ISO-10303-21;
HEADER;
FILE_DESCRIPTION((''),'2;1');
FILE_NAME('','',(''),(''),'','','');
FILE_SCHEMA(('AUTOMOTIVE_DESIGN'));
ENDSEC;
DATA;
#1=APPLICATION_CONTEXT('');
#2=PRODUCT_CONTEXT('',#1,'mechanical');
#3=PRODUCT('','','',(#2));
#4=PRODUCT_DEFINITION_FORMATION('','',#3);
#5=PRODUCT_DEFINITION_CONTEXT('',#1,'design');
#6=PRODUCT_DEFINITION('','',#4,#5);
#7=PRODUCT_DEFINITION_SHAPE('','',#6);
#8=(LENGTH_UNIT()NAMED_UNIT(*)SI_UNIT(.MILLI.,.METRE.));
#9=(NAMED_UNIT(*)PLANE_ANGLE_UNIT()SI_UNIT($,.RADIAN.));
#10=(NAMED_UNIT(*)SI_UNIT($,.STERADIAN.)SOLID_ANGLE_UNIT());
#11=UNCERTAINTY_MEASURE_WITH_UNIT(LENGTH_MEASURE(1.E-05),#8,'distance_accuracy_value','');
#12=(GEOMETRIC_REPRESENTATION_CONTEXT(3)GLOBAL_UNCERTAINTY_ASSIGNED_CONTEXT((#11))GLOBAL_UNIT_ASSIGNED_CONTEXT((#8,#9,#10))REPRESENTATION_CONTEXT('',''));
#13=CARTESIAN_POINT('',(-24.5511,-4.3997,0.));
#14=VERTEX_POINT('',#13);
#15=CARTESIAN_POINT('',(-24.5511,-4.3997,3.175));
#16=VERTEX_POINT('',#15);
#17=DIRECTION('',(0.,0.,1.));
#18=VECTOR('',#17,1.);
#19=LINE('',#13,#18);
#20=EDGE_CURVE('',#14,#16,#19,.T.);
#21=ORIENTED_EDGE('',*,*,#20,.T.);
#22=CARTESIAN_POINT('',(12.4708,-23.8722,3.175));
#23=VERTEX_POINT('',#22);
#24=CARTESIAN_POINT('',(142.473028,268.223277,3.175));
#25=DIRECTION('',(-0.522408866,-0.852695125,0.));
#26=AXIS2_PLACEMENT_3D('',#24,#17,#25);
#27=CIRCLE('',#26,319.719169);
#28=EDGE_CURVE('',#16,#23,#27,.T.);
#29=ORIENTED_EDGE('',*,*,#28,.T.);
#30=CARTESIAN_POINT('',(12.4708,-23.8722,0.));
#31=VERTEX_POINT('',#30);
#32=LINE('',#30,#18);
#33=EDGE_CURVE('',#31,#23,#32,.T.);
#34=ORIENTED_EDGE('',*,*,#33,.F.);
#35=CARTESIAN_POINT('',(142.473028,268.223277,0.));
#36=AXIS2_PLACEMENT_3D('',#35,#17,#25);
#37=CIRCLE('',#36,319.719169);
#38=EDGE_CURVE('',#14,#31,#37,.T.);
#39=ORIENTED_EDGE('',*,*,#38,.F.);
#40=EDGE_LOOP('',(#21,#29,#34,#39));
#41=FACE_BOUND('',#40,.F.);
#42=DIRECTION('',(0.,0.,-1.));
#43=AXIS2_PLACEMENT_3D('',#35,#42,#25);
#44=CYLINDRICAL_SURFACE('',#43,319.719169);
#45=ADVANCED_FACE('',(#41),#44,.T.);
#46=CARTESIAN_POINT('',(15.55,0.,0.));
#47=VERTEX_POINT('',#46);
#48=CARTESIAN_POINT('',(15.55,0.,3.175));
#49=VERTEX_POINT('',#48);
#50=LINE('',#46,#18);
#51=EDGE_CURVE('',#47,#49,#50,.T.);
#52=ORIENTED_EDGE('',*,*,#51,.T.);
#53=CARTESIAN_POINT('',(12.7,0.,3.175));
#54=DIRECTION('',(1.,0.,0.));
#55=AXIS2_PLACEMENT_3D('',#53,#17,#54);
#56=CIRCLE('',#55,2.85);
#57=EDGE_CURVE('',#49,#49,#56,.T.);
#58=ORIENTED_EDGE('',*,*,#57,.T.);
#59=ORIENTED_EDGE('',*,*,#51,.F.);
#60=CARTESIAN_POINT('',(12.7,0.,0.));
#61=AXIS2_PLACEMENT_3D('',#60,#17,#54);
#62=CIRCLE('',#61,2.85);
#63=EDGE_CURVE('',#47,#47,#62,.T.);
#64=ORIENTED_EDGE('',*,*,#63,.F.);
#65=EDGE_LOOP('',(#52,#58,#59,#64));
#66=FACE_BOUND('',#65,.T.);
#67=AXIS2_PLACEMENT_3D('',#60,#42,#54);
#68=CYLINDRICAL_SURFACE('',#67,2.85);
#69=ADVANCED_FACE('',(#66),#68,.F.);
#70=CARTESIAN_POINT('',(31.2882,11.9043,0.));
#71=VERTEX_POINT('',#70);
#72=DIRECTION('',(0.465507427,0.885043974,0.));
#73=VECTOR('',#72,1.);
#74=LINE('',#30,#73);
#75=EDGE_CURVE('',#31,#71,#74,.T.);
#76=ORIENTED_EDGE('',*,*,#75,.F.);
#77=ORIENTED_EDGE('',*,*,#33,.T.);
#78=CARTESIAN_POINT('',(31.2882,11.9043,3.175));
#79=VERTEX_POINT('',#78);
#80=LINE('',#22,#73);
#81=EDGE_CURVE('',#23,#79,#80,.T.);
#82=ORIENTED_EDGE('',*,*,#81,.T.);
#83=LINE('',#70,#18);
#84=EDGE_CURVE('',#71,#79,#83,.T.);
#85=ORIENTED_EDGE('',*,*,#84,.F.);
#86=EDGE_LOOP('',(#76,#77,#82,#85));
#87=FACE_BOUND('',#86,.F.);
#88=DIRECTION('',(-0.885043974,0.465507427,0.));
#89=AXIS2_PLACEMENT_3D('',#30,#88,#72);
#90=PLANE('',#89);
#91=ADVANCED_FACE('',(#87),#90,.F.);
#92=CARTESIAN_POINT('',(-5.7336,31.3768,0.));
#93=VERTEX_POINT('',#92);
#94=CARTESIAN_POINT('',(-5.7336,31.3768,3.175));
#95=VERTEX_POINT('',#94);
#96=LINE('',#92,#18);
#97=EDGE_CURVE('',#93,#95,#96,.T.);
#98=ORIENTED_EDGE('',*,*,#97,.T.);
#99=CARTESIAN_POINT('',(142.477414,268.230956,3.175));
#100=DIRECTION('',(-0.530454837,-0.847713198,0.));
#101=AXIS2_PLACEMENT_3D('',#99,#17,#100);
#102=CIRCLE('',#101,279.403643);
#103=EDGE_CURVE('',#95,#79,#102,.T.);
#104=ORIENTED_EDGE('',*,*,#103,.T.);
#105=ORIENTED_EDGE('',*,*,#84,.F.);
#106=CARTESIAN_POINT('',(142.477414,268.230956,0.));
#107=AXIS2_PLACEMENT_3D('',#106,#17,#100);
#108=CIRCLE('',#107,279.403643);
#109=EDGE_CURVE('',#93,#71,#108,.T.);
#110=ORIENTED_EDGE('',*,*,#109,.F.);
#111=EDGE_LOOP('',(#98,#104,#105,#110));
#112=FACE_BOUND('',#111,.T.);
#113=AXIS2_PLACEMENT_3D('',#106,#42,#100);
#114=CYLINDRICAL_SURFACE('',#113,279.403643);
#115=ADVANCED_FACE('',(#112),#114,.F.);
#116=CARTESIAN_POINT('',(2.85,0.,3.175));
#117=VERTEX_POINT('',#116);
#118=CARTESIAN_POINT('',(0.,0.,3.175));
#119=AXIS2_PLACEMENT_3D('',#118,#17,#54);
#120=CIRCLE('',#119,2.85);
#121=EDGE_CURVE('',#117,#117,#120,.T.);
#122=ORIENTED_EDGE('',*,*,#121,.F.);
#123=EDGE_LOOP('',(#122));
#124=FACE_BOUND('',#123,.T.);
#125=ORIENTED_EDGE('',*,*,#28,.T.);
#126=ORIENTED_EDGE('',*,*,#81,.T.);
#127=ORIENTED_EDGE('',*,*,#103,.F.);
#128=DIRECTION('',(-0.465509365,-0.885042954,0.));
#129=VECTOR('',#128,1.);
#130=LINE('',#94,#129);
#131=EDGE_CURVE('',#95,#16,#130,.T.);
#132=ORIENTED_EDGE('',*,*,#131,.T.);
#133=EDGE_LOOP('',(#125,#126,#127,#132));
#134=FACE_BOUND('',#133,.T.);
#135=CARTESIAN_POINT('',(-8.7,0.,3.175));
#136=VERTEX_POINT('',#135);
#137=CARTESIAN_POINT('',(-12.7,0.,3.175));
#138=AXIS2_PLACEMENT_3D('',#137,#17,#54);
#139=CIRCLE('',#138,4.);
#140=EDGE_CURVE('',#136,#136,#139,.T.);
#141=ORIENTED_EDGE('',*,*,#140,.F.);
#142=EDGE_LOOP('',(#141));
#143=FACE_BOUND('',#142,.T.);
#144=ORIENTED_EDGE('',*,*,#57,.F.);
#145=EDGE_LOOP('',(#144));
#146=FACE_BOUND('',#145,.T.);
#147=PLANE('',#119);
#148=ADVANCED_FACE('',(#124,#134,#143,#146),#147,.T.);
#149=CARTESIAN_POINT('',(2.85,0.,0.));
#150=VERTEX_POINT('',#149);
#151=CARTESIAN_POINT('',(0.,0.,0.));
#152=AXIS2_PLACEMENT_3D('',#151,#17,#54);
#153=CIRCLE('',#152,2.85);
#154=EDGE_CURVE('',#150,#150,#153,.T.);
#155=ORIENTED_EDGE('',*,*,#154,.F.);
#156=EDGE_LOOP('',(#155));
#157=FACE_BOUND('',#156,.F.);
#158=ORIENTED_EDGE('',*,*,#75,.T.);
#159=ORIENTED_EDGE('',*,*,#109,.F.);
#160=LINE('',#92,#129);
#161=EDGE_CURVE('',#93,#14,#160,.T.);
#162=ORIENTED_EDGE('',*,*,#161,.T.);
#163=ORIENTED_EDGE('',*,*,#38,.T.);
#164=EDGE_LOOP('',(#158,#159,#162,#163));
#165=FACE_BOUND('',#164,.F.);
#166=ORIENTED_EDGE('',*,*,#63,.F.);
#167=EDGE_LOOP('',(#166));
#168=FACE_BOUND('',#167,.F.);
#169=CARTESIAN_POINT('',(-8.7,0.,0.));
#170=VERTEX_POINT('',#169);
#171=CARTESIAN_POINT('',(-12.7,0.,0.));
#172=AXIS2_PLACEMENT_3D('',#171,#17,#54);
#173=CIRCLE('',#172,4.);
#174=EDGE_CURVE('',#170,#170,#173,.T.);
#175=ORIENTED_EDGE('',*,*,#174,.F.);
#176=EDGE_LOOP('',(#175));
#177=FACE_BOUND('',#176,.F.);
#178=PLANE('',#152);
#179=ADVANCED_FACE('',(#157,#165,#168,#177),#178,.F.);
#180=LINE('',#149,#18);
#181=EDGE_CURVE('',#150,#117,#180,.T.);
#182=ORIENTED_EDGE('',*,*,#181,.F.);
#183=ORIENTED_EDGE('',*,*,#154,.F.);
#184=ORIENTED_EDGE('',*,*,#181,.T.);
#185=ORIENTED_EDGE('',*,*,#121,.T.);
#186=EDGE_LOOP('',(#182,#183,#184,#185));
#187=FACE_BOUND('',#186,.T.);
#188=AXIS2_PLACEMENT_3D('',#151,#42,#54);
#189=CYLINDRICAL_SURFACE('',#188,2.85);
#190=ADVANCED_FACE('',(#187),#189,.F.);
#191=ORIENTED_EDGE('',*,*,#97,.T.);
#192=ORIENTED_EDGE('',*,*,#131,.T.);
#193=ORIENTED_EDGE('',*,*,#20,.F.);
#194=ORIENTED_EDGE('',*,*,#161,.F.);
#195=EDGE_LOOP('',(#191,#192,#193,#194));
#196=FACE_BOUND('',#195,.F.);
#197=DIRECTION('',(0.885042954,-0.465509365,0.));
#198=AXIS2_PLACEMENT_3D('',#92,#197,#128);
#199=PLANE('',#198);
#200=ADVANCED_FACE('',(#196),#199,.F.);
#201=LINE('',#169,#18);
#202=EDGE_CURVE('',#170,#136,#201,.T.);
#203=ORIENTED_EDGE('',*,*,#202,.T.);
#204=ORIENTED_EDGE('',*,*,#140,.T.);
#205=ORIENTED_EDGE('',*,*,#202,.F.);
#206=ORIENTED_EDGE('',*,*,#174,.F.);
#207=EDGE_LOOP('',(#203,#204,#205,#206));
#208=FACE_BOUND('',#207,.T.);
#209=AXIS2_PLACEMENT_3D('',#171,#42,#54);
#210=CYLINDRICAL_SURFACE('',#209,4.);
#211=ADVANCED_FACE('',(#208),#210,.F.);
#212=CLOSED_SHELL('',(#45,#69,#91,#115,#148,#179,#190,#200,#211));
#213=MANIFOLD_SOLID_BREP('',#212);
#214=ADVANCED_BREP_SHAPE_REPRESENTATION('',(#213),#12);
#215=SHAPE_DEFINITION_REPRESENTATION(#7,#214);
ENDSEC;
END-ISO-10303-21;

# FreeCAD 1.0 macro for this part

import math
import FreeCAD as App
import Part
import Sketcher
from FreeCAD import Vector

doc = App.newDocument("Part")
body = doc.addObject("PartDesign::Body", "Body")

# Sketch on XY plane
sketch1 = doc.addObject("Sketcher::SketchObject", "Sketch")
body.addObject(sketch1)
sketch1.AttachmentSupport = (doc.XY_Plane, [""])
sketch1.MapMode = "FlatFace"
sketch1.addGeometry(Part.LineSegment(Vector(-5.7, 31.4, 0), Vector(-24.6, -4.4, 0)), False)
sketch1.addGeometry(Part.ArcOfCircle(Part.Circle(Vector(142.5, 268.2, 0), Vector(0, 0, 1), 319.7), math.radians(-121.49), math.radians(-113.99)), False)
sketch1.addGeometry(Part.LineSegment(Vector(12.5, -23.9, 0), Vector(31.3, 11.9, 0)), False)
sketch1.addGeometry(Part.ArcOfCircle(Part.Circle(Vector(142.5, 268.2, 0), Vector(0, 0, 1), 279.4), math.radians(-122.04), math.radians(-113.45)), False)
sketch1.addGeometry(Part.Circle(Vector(-12.7, 0, 0), Vector(0, 0, 1), 4), False)
sketch1.addGeometry(Part.Circle(Vector(0, 0, 0), Vector(0, 0, 1), 2.9), False)
sketch1.addGeometry(Part.Circle(Vector(12.7, 0, 0), Vector(0, 0, 1), 2.9), False)
sketch1.addConstraint(Sketcher.Constraint("Coincident", 0, 2, 1, 1))
sketch1.addConstraint(Sketcher.Constraint("Coincident", 1, 2, 2, 1))
sketch1.addConstraint(Sketcher.Constraint("Coincident", 2, 2, 3, 2))
sketch1.addConstraint(Sketcher.Constraint("Coincident", 3, 1, 0, 1))
sketch1.addConstraint(Sketcher.Constraint("Coincident", 5, 3, -1, 1))
sketch1.addConstraint(Sketcher.Constraint("Equal", 5, 6))
sketch1.addConstraint(Sketcher.Constraint("Symmetric", 4, 3, 6, 3, -1, 1))
sketch1.addConstraint(Sketcher.Constraint("PointOnObject", 4, 3, -1))
sketch1.addConstraint(Sketcher.Constraint("Parallel", 0, 2))
sketch1.addConstraint(Sketcher.Constraint("Equal", 0, 2))
sketch1.addConstraint(Sketcher.Constraint("Diameter", 4, 8.0))
sketch1.addConstraint(Sketcher.Constraint("Diameter", 5, 5.7))
sketch1.addConstraint(Sketcher.Constraint("DistanceX", 4, 3, 6, 3, 25.4))
sketch1.addConstraint(Sketcher.Constraint("Distance", 0, 40.4235))
sketch1.addConstraint(Sketcher.Constraint("DistanceY", 0, 2, -1, 1, 4.3997))
sketch1.addConstraint(Sketcher.Constraint("DistanceY", -1, 1, 3, 1, 31.3768))
sketch1.addConstraint(Sketcher.Constraint("Radius", 1, 319.7192))
sketch1.addConstraint(Sketcher.Constraint("Radius", 3, 279.4036))
sketch1.addConstraint(Sketcher.Constraint("DistanceX", 6, 3, 2, 2, 18.5882))
sketch1.addConstraint(Sketcher.Constraint("DistanceX", -1, 1, 1, 3, 142.473))
sketch1.addConstraint(Sketcher.Constraint("DistanceY", -1, 1, 3, 3, 268.231))
pad1 = doc.addObject("PartDesign::Pad", "Pad")
body.addObject(pad1)
pad1.Profile = sketch1
pad1.Length = 3.175

doc.recompute()
